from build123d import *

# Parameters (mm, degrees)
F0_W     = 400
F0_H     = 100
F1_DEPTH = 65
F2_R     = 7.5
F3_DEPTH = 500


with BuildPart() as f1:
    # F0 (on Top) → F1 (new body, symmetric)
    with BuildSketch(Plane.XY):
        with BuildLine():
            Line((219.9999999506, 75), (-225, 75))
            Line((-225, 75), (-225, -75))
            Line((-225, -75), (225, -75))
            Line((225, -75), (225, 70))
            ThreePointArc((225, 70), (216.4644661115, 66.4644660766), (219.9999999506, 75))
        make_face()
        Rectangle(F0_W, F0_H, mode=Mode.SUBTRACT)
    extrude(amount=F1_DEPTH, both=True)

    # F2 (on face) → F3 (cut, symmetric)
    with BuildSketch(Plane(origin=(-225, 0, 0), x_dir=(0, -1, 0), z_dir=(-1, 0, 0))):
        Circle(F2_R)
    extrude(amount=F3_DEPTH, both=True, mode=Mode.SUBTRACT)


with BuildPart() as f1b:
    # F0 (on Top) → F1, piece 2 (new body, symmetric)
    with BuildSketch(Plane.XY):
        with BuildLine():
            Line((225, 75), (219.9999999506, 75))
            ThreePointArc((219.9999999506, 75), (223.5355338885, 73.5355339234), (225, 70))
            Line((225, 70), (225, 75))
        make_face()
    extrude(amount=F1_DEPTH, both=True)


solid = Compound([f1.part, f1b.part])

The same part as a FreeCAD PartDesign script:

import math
import FreeCAD as App
import Part
import Sketcher
from FreeCAD import Vector

doc = App.newDocument("Part")
params = doc.addObject("Spreadsheet::Sheet", "Params")
for row, (alias, value) in enumerate([
    ("sketch1_radius", "5 mm"),
    ("sketch1_width", "445 mm"),
    ("sketch1_width2", "400 mm"),
    ("sketch1_height", "150 mm"),
    ("sketch1_height2", "100 mm"),
    ("pad1_length", "130 mm"),
    ("sketch2_diameter", "15 mm"),
    ("pocket1_length", "1000 mm"),
    ("sketch3_radius", "5 mm"),
    ("pad2_length", "130 mm"),
], start=1):
    params.set(f"A{row}", alias)
    params.set(f"B{row}", "=" + value)
    params.setAlias(f"B{row}", alias)

body = doc.addObject("PartDesign::Body", "Body")

sketch1 = body.newObject("Sketcher::SketchObject", "Sketch")
sketch1.AttachmentSupport = (doc.getObject("XY_Plane"), [""])
sketch1.MapMode = "FlatFace"
sketch1.addGeometry(Part.LineSegment(Vector(220, 75, 0), Vector(-225, 75, 0)), False)
sketch1.addGeometry(Part.LineSegment(Vector(-225, 75, 0), Vector(-225, -75, 0)), False)
sketch1.addGeometry(Part.LineSegment(Vector(-225, -75, 0), Vector(225, -75, 0)), False)
sketch1.addGeometry(Part.LineSegment(Vector(225, -75, 0), Vector(225, 70, 0)), False)
sketch1.addGeometry(Part.ArcOfCircle(Part.Circle(Vector(220, 70, 0), Vector(0, 0, 1), 5), math.radians(90.000001), math.radians(360)), False)
sketch1.addGeometry(Part.LineSegment(Vector(200, -50, 0), Vector(-200, -50, 0)), False)
sketch1.addGeometry(Part.LineSegment(Vector(-200, -50, 0), Vector(-200, 50, 0)), False)
sketch1.addGeometry(Part.LineSegment(Vector(-200, 50, 0), Vector(200, 50, 0)), False)
sketch1.addGeometry(Part.LineSegment(Vector(200, 50, 0), Vector(200, -50, 0)), False)
sketch1.addConstraint(Sketcher.Constraint("Coincident", 0, 2, 1, 1))
sketch1.addConstraint(Sketcher.Constraint("Coincident", 1, 2, 2, 1))
sketch1.addConstraint(Sketcher.Constraint("Coincident", 2, 2, 3, 1))
sketch1.addConstraint(Sketcher.Constraint("Tangent", 3, 2, 4, 2))
sketch1.addConstraint(Sketcher.Constraint("Tangent", 4, 1, 0, 1))
sketch1.addConstraint(Sketcher.Constraint("Coincident", 5, 2, 6, 1))
sketch1.addConstraint(Sketcher.Constraint("Coincident", 6, 2, 7, 1))
sketch1.addConstraint(Sketcher.Constraint("Coincident", 7, 2, 8, 1))
sketch1.addConstraint(Sketcher.Constraint("Coincident", 8, 2, 5, 1))
sketch1.addConstraint(Sketcher.Constraint("Horizontal", 0))
sketch1.addConstraint(Sketcher.Constraint("Vertical", 1))
sketch1.addConstraint(Sketcher.Constraint("Horizontal", 2))
sketch1.addConstraint(Sketcher.Constraint("Vertical", 3))
sketch1.addConstraint(Sketcher.Constraint("Horizontal", 5))
sketch1.addConstraint(Sketcher.Constraint("Vertical", 6))
sketch1.addConstraint(Sketcher.Constraint("Horizontal", 7))
sketch1.addConstraint(Sketcher.Constraint("Vertical", 8))
sketch1.addConstraint(Sketcher.Constraint("Symmetric", 0, 2, 2, 2, -1, 1))
sketch1.addConstraint(Sketcher.Constraint("Symmetric", 5, 2, 7, 2, -1, 1))
sketch1.addConstraint(Sketcher.Constraint("Radius", 4, 5.0))
sketch1.addConstraint(Sketcher.Constraint("DistanceX", 0, 2, 0, 1, 445.0))
sketch1.addConstraint(Sketcher.Constraint("DistanceX", 5, 2, 5, 1, 400.0))
sketch1.addConstraint(Sketcher.Constraint("DistanceY", 1, 2, 1, 1, 150.0))
sketch1.addConstraint(Sketcher.Constraint("DistanceY", 6, 1, 6, 2, 100.0))
sketch1.setExpression("Constraints[19]", "Params.sketch1_radius")
sketch1.setExpression("Constraints[20]", "Params.sketch1_width")
sketch1.setExpression("Constraints[21]", "Params.sketch1_width2")
sketch1.setExpression("Constraints[22]", "Params.sketch1_height")
sketch1.setExpression("Constraints[23]", "Params.sketch1_height2")
pad1 = body.newObject("PartDesign::Pad", "Pad")
pad1.Profile = sketch1
pad1.setExpression("Length", "Params.pad1_length")
pad1.Midplane = True

sketch2 = body.newObject("Sketcher::SketchObject", "Sketch001")
sketch2.AttachmentSupport = (doc.getObject("YZ_Plane"), [""])
sketch2.MapMode = "FlatFace"
sketch2.AttachmentOffset = App.Placement(Vector(0, 0, -225), App.Rotation())
sketch2.addGeometry(Part.Circle(Vector(0, 0, 0), Vector(0, 0, 1), 7.5), False)
sketch2.addConstraint(Sketcher.Constraint("Coincident", 0, 3, -1, 1))
sketch2.addConstraint(Sketcher.Constraint("Diameter", 0, 15.0))
sketch2.setExpression("Constraints[1]", "Params.sketch2_diameter")
pocket1 = body.newObject("PartDesign::Pocket", "Pocket")
pocket1.Profile = sketch2
pocket1.setExpression("Length", "Params.pocket1_length")
pocket1.Midplane = True
body2 = doc.addObject("PartDesign::Body", "Body001")

sketch3 = body2.newObject("Sketcher::SketchObject", "Sketch002")
sketch3.AttachmentSupport = (doc.getObject("XY_Plane001"), [""])
sketch3.MapMode = "FlatFace"
sketch3.addGeometry(Part.LineSegment(Vector(225, 75, 0), Vector(220, 75, 0)), False)
sketch3.addGeometry(Part.ArcOfCircle(Part.Circle(Vector(220, 70, 0), Vector(0, 0, 1), 5), math.radians(0), math.radians(90.000001)), False)
sketch3.addGeometry(Part.LineSegment(Vector(225, 70, 0), Vector(225, 75, 0)), False)
sketch3.addConstraint(Sketcher.Constraint("Tangent", 0, 2, 1, 2))
sketch3.addConstraint(Sketcher.Constraint("Tangent", 1, 1, 2, 1))
sketch3.addConstraint(Sketcher.Constraint("Coincident", 2, 2, 0, 1))
sketch3.addConstraint(Sketcher.Constraint("Horizontal", 0))
sketch3.addConstraint(Sketcher.Constraint("Vertical", 2))
sketch3.addConstraint(Sketcher.Constraint("Radius", 1, 5.0))
sketch3.addConstraint(Sketcher.Constraint("DistanceX", -1, 1, 1, 3, 220.0))
sketch3.addConstraint(Sketcher.Constraint("DistanceY", -1, 1, 1, 3, 70.0))
sketch3.setExpression("Constraints[5]", "Params.sketch3_radius")
pad2 = body2.newObject("PartDesign::Pad", "Pad001")
pad2.Profile = sketch3
pad2.setExpression("Length", "Params.pad2_length")
pad2.Midplane = True

doc.recompute()
